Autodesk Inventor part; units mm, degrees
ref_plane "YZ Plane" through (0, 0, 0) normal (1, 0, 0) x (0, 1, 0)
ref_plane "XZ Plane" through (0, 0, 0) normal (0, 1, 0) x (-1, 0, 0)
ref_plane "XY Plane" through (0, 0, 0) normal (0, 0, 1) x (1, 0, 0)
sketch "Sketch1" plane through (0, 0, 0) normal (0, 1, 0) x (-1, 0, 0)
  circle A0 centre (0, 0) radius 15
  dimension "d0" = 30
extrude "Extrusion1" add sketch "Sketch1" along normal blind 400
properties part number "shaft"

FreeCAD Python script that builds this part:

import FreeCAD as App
import Part
import Sketcher

V = App.Vector

doc = App.newDocument("Part")
body = doc.addObject("PartDesign::Body", "Body")

# Sketch on XZ plane
sketch1 = doc.addObject("Sketcher::SketchObject", "Sketch")
body.addObject(sketch1)
sketch1.AttachmentSupport = (doc.XZ_Plane, [""])
sketch1.MapMode = "FlatFace"
sketch1.addGeometry(Part.Circle(V(0, 0, 0), V(0, 0, 1), 15), False)
sketch1.addConstraint([
    Sketcher.Constraint("Coincident", 0, 3, -1, 1),
    Sketcher.Constraint("Diameter", 0, 30.0),
])
pad1 = doc.addObject("PartDesign::Pad", "Pad")
body.addObject(pad1)
pad1.Profile = sketch1
pad1.Length = 400
pad1.Reversed = True

doc.recompute()
